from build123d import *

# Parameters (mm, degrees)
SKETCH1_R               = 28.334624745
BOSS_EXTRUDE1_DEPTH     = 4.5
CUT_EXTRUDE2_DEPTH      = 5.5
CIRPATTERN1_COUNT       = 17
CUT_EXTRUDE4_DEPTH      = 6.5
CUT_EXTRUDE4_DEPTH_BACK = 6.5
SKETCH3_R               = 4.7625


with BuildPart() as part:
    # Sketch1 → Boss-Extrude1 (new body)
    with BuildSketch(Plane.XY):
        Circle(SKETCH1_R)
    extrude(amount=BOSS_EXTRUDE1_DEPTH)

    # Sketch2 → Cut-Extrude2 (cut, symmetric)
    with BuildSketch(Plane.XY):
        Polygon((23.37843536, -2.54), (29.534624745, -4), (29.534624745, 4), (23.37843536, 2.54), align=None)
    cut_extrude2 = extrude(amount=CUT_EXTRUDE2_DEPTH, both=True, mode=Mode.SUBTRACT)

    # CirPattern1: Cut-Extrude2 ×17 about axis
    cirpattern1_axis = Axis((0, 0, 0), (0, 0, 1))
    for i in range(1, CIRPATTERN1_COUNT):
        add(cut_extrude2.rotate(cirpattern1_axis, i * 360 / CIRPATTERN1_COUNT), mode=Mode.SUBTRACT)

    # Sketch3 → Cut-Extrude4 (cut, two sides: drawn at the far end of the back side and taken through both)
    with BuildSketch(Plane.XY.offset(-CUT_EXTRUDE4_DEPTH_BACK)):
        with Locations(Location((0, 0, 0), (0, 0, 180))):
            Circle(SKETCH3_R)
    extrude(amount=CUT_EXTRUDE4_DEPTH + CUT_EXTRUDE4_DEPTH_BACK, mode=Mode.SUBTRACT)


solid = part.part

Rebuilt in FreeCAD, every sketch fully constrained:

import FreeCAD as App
import Part
import Sketcher

V = App.Vector
Q = App.Units.Quantity


def add_polygon(sketch, points):
    """Adds a closed chain of lines whose ends are joined by coincident constraints."""
    first, n = sketch.GeometryCount, len(points)
    for a, b in zip(points, points[1:] + points[:1]):
        sketch.addGeometry(Part.LineSegment(App.Vector(*a, 0), App.Vector(*b, 0)), False)
    for i in range(n):
        sketch.addConstraint(Sketcher.Constraint("Coincident", first + i, 2, first + (i + 1) % n, 1))

doc = App.newDocument("Part")
body = doc.addObject("PartDesign::Body", "Body")

# Sketch on XY plane
sketch1 = body.newObject("Sketcher::SketchObject", "Sketch")
sketch1.AttachmentSupport = (doc.getObject("XY_Plane"), [""])
sketch1.MapMode = "FlatFace"
sketch1.addGeometry(Part.Circle(V(0, 0, 0), V(0, 0, 1), 28), False)
sketch1.addConstraint(Sketcher.Constraint("Coincident", 0, 3, -1, 1))
sketch1.addConstraint(Sketcher.Constraint("Diameter", 0, Q("56.669249 mm")))
pad1 = body.newObject("PartDesign::Pad", "Pad")
pad1.Profile = sketch1
pad1.Length = 4.5

# Sketch on XY plane
sketch2 = body.newObject("Sketcher::SketchObject", "Sketch001")
sketch2.AttachmentSupport = (doc.getObject("XY_Plane"), [""])
sketch2.MapMode = "FlatFace"
add_polygon(sketch2, [(23, -3), (30, -4), (30, 4), (23, 3)])  # lines 0-3
sketch2.addConstraint(Sketcher.Constraint("Vertical", 1))
sketch2.addConstraint(Sketcher.Constraint("Vertical", 3))
sketch2.addConstraint(Sketcher.Constraint("Equal", 0, 2))
sketch2.addConstraint(Sketcher.Constraint("DistanceY", 1, 1, 1, 2, Q("8 mm")))
sketch2.addConstraint(Sketcher.Constraint("DistanceY", 0, 2, -1, 1, Q("4 mm")))
sketch2.addConstraint(Sketcher.Constraint("DistanceY", 3, 2, 3, 1, Q("5.08 mm")))
sketch2.addConstraint(Sketcher.Constraint("DistanceX", 2, 2, 1, 2, Q("6.156189 mm")))
sketch2.addConstraint(Sketcher.Constraint("DistanceX", -1, 1, 0, 2, Q("29.534625 mm")))
pocket1 = body.newObject("PartDesign::Pocket", "Pocket")
pocket1.Profile = sketch2
pocket1.Length = 11
pocket1.Midplane = True
doc.recompute()

polarpattern = body.newObject("PartDesign::PolarPattern", "PolarPattern")
polarpattern.Originals = [pocket1]
polarpattern.Axis = (doc.getObject("Z_Axis"), [""])
polarpattern.Angle = 360
polarpattern.Occurrences = 17
body.Tip = polarpattern

# Sketch on XY plane
sketch3 = body.newObject("Sketcher::SketchObject", "Sketch002")
sketch3.AttachmentSupport = (doc.getObject("XY_Plane"), [""])
sketch3.MapMode = "FlatFace"
sketch3.addGeometry(Part.Circle(V(0, 0, 0), V(0, 0, 1), 4.8), False)
sketch3.addConstraint(Sketcher.Constraint("Coincident", 0, 3, -1, 1))
sketch3.addConstraint(Sketcher.Constraint("Diameter", 0, Q("9.525 mm")))
pocket2 = body.newObject("PartDesign::Pocket", "Pocket001")
pocket2.Profile = sketch3
pocket2.Type = "ThroughAll"
pocket2.Midplane = True

doc.recompute()
